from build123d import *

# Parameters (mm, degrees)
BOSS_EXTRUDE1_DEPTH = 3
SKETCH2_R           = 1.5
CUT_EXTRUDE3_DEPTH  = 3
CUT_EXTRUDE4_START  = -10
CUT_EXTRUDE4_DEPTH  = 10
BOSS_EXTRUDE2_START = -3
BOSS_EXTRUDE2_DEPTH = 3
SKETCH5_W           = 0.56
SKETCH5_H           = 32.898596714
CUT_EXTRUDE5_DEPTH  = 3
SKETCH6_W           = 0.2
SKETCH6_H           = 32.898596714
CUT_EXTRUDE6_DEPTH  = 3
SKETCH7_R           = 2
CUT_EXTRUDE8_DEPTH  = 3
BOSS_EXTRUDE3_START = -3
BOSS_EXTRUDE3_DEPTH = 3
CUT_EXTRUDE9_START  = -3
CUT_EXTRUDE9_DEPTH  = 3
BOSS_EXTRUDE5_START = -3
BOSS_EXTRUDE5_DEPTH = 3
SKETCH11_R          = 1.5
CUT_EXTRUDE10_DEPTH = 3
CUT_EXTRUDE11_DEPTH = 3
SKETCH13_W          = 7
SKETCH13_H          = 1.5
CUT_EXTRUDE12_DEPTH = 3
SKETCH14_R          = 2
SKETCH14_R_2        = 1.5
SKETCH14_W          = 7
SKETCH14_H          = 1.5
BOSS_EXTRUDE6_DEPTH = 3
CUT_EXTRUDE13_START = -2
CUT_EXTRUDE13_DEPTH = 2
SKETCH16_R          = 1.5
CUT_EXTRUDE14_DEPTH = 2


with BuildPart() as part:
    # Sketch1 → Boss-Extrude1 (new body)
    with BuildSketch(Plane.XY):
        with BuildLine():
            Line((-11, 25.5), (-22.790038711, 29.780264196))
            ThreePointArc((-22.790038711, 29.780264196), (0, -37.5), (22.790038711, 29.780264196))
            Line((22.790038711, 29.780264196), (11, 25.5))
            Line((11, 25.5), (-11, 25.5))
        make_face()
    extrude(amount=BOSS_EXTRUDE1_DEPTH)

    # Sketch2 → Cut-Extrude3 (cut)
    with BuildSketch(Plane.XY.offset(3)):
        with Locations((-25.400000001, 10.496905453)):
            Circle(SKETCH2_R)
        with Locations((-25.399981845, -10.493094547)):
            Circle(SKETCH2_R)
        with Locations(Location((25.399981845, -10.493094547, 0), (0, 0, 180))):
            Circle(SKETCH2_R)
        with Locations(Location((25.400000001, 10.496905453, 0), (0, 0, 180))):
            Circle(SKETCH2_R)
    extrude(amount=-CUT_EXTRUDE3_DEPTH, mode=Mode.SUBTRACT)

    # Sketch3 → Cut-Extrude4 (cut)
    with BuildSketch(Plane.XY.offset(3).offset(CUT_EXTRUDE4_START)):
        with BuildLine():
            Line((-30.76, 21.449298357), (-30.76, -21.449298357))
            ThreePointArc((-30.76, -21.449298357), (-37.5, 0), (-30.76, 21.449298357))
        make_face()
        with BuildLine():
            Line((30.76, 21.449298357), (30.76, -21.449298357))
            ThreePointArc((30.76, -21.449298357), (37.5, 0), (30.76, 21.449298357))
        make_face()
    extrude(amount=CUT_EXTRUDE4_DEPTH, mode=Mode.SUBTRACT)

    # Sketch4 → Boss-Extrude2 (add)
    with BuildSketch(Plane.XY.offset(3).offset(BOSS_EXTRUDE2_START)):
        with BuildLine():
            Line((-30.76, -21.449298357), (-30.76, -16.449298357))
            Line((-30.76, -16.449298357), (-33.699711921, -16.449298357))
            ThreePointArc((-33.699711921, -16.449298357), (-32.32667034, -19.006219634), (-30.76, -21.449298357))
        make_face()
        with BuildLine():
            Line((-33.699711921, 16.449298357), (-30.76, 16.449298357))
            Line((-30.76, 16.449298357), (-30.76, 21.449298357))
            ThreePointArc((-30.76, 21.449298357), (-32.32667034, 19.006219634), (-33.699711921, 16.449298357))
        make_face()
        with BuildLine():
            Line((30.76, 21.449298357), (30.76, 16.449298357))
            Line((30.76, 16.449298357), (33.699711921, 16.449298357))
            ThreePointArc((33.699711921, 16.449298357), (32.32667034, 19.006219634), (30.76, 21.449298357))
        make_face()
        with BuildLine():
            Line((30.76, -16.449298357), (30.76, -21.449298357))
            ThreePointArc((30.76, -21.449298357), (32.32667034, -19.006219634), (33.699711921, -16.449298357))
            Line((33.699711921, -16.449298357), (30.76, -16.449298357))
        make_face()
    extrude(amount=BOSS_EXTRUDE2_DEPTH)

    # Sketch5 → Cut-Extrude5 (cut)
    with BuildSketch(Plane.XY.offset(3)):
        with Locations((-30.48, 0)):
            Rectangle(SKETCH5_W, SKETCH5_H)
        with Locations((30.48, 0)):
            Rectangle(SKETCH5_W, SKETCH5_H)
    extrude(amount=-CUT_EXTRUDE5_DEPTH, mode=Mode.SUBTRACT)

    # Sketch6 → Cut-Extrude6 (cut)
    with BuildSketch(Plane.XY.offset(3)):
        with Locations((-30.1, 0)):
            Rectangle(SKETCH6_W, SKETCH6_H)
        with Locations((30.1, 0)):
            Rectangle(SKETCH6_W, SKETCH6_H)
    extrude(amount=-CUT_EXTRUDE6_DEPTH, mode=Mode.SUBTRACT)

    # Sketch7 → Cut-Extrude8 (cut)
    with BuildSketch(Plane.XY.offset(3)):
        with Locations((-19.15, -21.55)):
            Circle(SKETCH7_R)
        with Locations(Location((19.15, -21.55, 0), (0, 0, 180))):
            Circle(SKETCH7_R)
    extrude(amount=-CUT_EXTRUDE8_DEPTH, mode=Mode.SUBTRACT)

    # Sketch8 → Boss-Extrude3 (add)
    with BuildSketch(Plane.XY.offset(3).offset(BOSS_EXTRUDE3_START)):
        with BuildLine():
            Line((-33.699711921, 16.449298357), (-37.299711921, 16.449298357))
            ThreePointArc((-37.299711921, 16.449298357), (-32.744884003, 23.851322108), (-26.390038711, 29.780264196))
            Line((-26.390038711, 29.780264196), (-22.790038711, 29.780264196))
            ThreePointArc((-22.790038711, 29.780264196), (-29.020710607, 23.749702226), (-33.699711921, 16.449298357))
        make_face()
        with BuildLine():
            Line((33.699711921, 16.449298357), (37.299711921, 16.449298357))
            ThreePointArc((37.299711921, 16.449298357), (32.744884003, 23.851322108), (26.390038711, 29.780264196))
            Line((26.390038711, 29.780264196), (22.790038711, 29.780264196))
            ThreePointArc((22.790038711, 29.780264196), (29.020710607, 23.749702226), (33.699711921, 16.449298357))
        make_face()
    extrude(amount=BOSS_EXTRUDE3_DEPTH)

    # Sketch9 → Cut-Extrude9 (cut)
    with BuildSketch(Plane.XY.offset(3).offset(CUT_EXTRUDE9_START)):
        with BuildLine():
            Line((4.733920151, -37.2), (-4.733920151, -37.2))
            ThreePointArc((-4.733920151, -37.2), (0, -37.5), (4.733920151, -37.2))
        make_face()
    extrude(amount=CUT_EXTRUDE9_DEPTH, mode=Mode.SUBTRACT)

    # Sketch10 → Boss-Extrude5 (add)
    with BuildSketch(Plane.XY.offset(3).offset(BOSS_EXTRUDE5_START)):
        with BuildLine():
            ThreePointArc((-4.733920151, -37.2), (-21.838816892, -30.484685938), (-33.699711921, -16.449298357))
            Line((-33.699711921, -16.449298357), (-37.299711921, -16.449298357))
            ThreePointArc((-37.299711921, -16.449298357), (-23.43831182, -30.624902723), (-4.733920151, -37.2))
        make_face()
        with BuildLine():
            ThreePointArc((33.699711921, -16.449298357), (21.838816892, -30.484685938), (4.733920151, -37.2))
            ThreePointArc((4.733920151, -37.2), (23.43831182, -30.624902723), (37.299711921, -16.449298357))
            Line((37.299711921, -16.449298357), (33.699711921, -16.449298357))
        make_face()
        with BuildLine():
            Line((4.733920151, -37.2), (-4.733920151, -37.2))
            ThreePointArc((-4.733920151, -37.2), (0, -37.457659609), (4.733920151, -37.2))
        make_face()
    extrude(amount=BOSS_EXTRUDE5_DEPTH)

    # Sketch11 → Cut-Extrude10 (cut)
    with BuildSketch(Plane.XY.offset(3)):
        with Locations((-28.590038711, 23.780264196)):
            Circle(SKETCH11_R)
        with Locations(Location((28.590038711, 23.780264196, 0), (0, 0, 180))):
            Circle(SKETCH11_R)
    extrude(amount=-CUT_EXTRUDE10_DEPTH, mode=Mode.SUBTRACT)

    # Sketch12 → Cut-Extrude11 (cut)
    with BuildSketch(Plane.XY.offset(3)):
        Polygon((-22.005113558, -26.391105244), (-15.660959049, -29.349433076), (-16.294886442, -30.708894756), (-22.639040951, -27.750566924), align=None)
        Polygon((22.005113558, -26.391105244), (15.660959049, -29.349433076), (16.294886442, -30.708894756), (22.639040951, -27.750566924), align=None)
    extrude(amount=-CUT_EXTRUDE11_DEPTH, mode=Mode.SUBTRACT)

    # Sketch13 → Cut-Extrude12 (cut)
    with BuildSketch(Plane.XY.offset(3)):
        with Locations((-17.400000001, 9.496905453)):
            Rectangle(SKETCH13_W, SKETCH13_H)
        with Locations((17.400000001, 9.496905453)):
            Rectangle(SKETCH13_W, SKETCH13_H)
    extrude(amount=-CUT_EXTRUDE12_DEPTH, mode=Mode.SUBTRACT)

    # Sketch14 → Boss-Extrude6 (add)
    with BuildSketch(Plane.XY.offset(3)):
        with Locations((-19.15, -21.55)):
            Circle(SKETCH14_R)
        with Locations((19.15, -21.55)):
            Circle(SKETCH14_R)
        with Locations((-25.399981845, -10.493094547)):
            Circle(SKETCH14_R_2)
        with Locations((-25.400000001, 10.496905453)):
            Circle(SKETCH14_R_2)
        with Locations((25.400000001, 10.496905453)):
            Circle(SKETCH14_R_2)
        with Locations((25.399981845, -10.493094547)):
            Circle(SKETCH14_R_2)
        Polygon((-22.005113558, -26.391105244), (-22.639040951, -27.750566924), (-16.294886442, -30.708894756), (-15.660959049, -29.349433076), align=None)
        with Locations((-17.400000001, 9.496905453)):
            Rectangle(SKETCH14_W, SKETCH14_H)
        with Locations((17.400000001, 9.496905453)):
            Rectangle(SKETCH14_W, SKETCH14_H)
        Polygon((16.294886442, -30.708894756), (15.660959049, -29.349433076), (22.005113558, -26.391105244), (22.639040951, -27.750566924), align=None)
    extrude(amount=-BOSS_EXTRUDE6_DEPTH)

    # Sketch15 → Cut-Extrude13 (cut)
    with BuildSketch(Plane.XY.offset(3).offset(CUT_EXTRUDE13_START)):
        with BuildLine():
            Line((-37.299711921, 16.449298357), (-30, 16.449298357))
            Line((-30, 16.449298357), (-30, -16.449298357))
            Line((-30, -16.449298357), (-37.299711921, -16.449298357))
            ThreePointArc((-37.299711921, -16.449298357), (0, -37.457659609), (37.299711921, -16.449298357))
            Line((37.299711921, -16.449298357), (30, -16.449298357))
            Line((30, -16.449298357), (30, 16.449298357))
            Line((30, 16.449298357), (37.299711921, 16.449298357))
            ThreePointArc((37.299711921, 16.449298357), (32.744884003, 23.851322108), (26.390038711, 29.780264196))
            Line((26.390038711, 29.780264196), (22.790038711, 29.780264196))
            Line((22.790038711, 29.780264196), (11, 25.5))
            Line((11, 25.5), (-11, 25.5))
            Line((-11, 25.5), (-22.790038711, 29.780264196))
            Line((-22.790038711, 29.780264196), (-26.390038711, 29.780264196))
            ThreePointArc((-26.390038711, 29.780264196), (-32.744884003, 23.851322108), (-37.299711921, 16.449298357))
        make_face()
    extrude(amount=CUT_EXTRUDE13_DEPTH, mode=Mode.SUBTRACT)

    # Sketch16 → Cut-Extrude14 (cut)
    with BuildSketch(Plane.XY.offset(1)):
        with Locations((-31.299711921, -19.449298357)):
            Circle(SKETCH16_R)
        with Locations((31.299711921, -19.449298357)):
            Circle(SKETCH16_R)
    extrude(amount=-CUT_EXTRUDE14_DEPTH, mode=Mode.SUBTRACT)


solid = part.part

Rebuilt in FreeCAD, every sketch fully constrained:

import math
import FreeCAD as App
import Part
import Sketcher
from FreeCAD import Vector
Q = App.Units.Quantity

doc = App.newDocument("Part")
body = doc.addObject("PartDesign::Body", "Body")

# Sketch on XY plane
sketch1 = body.newObject("Sketcher::SketchObject", "Sketch")
sketch1.AttachmentSupport = (doc.getObject("XY_Plane"), [""])
sketch1.MapMode = "FlatFace"
sketch1.addGeometry([
    Part.LineSegment(Vector(-11, 26, 0), Vector(-23, 30, 0)),
    Part.ArcOfCircle(Part.Circle(Vector(0, 0, 0), Vector(0, 0, 1), 38), math.radians(127), math.radians(413)),
    Part.LineSegment(Vector(23, 30, 0), Vector(11, 26, 0)),
    Part.LineSegment(Vector(11, 26, 0), Vector(-11, 26, 0)),
], False)
sketch1.addConstraint([
    Sketcher.Constraint("Coincident", 0, 2, 1, 1),
    Sketcher.Constraint("Coincident", 1, 2, 2, 1),
    Sketcher.Constraint("Coincident", 2, 2, 3, 1),
    Sketcher.Constraint("Coincident", 3, 2, 0, 1),
    Sketcher.Constraint("Horizontal", 3),
    Sketcher.Constraint("Coincident", 1, 3, -1, 1),
    Sketcher.Constraint("Horizontal", 0, 2, 1, 2),
    Sketcher.Constraint("Equal", 0, 2),
    Sketcher.Constraint("Radius", 1, Q("37.5 mm")),
    Sketcher.Constraint("DistanceX", 3, 2, 3, 1, Q("22 mm")),
    Sketcher.Constraint("DistanceY", -1, 1, 2, 2, Q("25.5 mm")),
    Sketcher.Constraint("DistanceX", 0, 2, -1, 1, Q("22.790039 mm")),
])
pad1 = body.newObject("PartDesign::Pad", "Pad")
pad1.Profile = sketch1
pad1.Length = 3

# Sketch on XY plane
sketch2 = body.newObject("Sketcher::SketchObject", "Sketch001")
sketch2.AttachmentSupport = (doc.getObject("XY_Plane"), [""])
sketch2.MapMode = "FlatFace"
sketch2.AttachmentOffset = App.Placement(Vector(0, 0, 3), App.Rotation())
sketch2.addGeometry([
    Part.Circle(Vector(-25.4, 10.5, 0), Vector(0, 0, 1), 1.5),
    Part.Circle(Vector(-25.4, -10.5, 0), Vector(0, 0, 1), 1.5),
    Part.Circle(Vector(25.4, -10.5, 0), Vector(0, 0, 1), 1.5),
    Part.Circle(Vector(25.4, 10.5, 0), Vector(0, 0, 1), 1.5),
], False)
sketch2.addConstraint([
    Sketcher.Constraint("Equal", 0, 1),
    Sketcher.Constraint("Equal", 1, 2),
    Sketcher.Constraint("Equal", 2, 3),
    Sketcher.Constraint("Symmetric", 1, 3, 2, 3, -2),
    Sketcher.Constraint("Symmetric", 0, 3, 3, 3, -2),
    Sketcher.Constraint("Diameter", 0, Q("3 mm")),
    Sketcher.Constraint("DistanceX", 0, 3, -1, 1, Q("25.4 mm")),
    Sketcher.Constraint("DistanceY", 1, 3, 0, 3, Q("20.99 mm")),
    Sketcher.Constraint("DistanceX", 1, 3, -1, 1, Q("25.399982 mm")),
    Sketcher.Constraint("DistanceY", -1, 1, 0, 3, Q("10.496905 mm")),
])
pocket1 = body.newObject("PartDesign::Pocket", "Pocket")
pocket1.Profile = sketch2
pocket1.Length = 3

# Sketch on XY plane
sketch3 = body.newObject("Sketcher::SketchObject", "Sketch002")
sketch3.AttachmentSupport = (doc.getObject("XY_Plane"), [""])
sketch3.MapMode = "FlatFace"
sketch3.AttachmentOffset = App.Placement(Vector(0, 0, -7), App.Rotation())
sketch3.addGeometry([
    Part.LineSegment(Vector(-31, -21, 0), Vector(-31, 21, 0)),
    Part.ArcOfCircle(Part.Circle(Vector(0, 0, 0), Vector(0, 0, 1), 38), math.radians(145), math.radians(215)),
    Part.LineSegment(Vector(31, 21, 0), Vector(31, -21, 0)),
    Part.ArcOfCircle(Part.Circle(Vector(0, 0, 0), Vector(0, 0, 1), 38), math.radians(-35), math.radians(35)),
], False)
sketch3.addConstraint([
    Sketcher.Constraint("Coincident", 0, 1, 1, 2),
    Sketcher.Constraint("Coincident", 1, 1, 0, 2),
    Sketcher.Constraint("Coincident", 2, 1, 3, 2),
    Sketcher.Constraint("Coincident", 3, 1, 2, 2),
    Sketcher.Constraint("Vertical", 0),
    Sketcher.Constraint("Vertical", 2),
    Sketcher.Constraint("Coincident", 1, 3, -1, 1),
    Sketcher.Constraint("Coincident", 3, 3, -1, 1),
    Sketcher.Constraint("Equal", 1, 3),
    Sketcher.Constraint("Horizontal", 1, 1, 2, 1),
    Sketcher.Constraint("Radius", 1, Q("37.5 mm")),
    Sketcher.Constraint("DistanceX", 0, 1, -1, 1, Q("30.76 mm")),
])
pocket2 = body.newObject("PartDesign::Pocket", "Pocket001")
pocket2.Profile = sketch3
pocket2.Length = 10
pocket2.Reversed = True

# Sketch on XY plane
sketch4 = body.newObject("Sketcher::SketchObject", "Sketch003")
sketch4.AttachmentSupport = (doc.getObject("XY_Plane"), [""])
sketch4.MapMode = "FlatFace"
sketch4.addGeometry([
    Part.LineSegment(Vector(-30.8, -21.4, 0), Vector(-30.8, -16.4, 0)),  # 0
    Part.LineSegment(Vector(-30.8, -16.4, 0), Vector(-33.7, -16.4, 0)),  # 1
    Part.ArcOfCircle(Part.Circle(Vector(0, 0, 0), Vector(0, 0, 1), 37.5), math.radians(-153.98), math.radians(-145.11)),  # 2
    Part.LineSegment(Vector(-33.7, 16.4, 0), Vector(-30.8, 16.4, 0)),  # 3
    Part.LineSegment(Vector(-30.8, 16.4, 0), Vector(-30.8, 21.4, 0)),  # 4
    Part.ArcOfCircle(Part.Circle(Vector(0, 0, 0), Vector(0, 0, 1), 37.5), math.radians(145.11), math.radians(153.98)),  # 5
    Part.LineSegment(Vector(30.8, 21.4, 0), Vector(30.8, 16.4, 0)),  # 6
    Part.LineSegment(Vector(30.8, 16.4, 0), Vector(33.7, 16.4, 0)),  # 7
    Part.ArcOfCircle(Part.Circle(Vector(0, 0, 0), Vector(0, 0, 1), 37.5), math.radians(26.02), math.radians(34.89)),  # 8
    Part.LineSegment(Vector(30.8, -16.4, 0), Vector(30.8, -21.4, 0)),  # 9
    Part.ArcOfCircle(Part.Circle(Vector(0, 0, 0), Vector(0, 0, 1), 37.5), math.radians(-34.89), math.radians(-26.02)),  # 10
    Part.LineSegment(Vector(33.7, -16.4, 0), Vector(30.8, -16.4, 0)),  # 11
], False)
sketch4.addConstraint([
    Sketcher.Constraint("Coincident", 0, 2, 1, 1),
    Sketcher.Constraint("Coincident", 1, 2, 2, 1),
    Sketcher.Constraint("Coincident", 2, 2, 0, 1),
    Sketcher.Constraint("Coincident", 3, 2, 4, 1),
    Sketcher.Constraint("Coincident", 4, 2, 5, 1),
    Sketcher.Constraint("Coincident", 5, 2, 3, 1),
    Sketcher.Constraint("Coincident", 6, 2, 7, 1),
    Sketcher.Constraint("Coincident", 7, 2, 8, 1),
    Sketcher.Constraint("Coincident", 8, 2, 6, 1),
    Sketcher.Constraint("Coincident", 9, 2, 10, 1),
    Sketcher.Constraint("Coincident", 10, 2, 11, 1),
    Sketcher.Constraint("Coincident", 11, 2, 9, 1),
    Sketcher.Constraint("Vertical", 0),
    Sketcher.Constraint("Horizontal", 1),
    Sketcher.Constraint("Horizontal", 3),
    Sketcher.Constraint("Vertical", 4),
    Sketcher.Constraint("Vertical", 6),
    Sketcher.Constraint("Horizontal", 7),
    Sketcher.Constraint("Vertical", 9),
    Sketcher.Constraint("Horizontal", 11),
    Sketcher.Constraint("Coincident", 2, 3, -1, 1),
    Sketcher.Constraint("Coincident", 5, 3, -1, 1),
    Sketcher.Constraint("Coincident", 8, 3, -1, 1),
    Sketcher.Constraint("Coincident", 10, 3, -1, 1),
    Sketcher.Constraint("Equal", 2, 5),
    Sketcher.Constraint("Equal", 5, 8),
    Sketcher.Constraint("Equal", 8, 10),
    Sketcher.Constraint("Symmetric", 0, 2, 6, 2, -1, 1),
    Sketcher.Constraint("Symmetric", 3, 2, 11, 2, -1, 1),
    Sketcher.Constraint("Symmetric", 3, 2, 6, 2, -2),
    Sketcher.Constraint("Radius", 2, Q("37.5 mm")),
    Sketcher.Constraint("DistanceY", 0, 1, 0, 2, Q("5 mm")),
    Sketcher.Constraint("DistanceX", 0, 2, -1, 1, Q("30.76 mm")),
])
pad2 = body.newObject("PartDesign::Pad", "Pad001")
pad2.Profile = sketch4
pad2.Length = 3

# Sketch on XY plane
sketch5 = body.newObject("Sketcher::SketchObject", "Sketch004")
sketch5.AttachmentSupport = (doc.getObject("XY_Plane"), [""])
sketch5.MapMode = "FlatFace"
sketch5.AttachmentOffset = App.Placement(Vector(0, 0, 3), App.Rotation())
sketch5.addGeometry([
    Part.LineSegment(Vector(-30.8, 16.4, 0), Vector(-30.8, -16.4, 0)),  # 0
    Part.LineSegment(Vector(-30.8, -16.4, 0), Vector(-30.2, -16.4, 0)),  # 1
    Part.LineSegment(Vector(-30.2, -16.4, 0), Vector(-30.2, 16.4, 0)),  # 2
    Part.LineSegment(Vector(-30.2, 16.4, 0), Vector(-30.8, 16.4, 0)),  # 3
    Part.LineSegment(Vector(30.2, 16.4, 0), Vector(30.2, -16.4, 0)),  # 4
    Part.LineSegment(Vector(30.2, -16.4, 0), Vector(30.8, -16.4, 0)),  # 5
    Part.LineSegment(Vector(30.8, -16.4, 0), Vector(30.8, 16.4, 0)),  # 6
    Part.LineSegment(Vector(30.8, 16.4, 0), Vector(30.2, 16.4, 0)),  # 7
], False)
sketch5.addConstraint([
    Sketcher.Constraint("Coincident", 0, 2, 1, 1),
    Sketcher.Constraint("Coincident", 1, 2, 2, 1),
    Sketcher.Constraint("Coincident", 2, 2, 3, 1),
    Sketcher.Constraint("Coincident", 3, 2, 0, 1),
    Sketcher.Constraint("Coincident", 4, 2, 5, 1),
    Sketcher.Constraint("Coincident", 5, 2, 6, 1),
    Sketcher.Constraint("Coincident", 6, 2, 7, 1),
    Sketcher.Constraint("Coincident", 7, 2, 4, 1),
    Sketcher.Constraint("Vertical", 0),
    Sketcher.Constraint("Horizontal", 1),
    Sketcher.Constraint("Vertical", 2),
    Sketcher.Constraint("Horizontal", 3),
    Sketcher.Constraint("Vertical", 4),
    Sketcher.Constraint("Horizontal", 5),
    Sketcher.Constraint("Vertical", 6),
    Sketcher.Constraint("Horizontal", 7),
    Sketcher.Constraint("Symmetric", 2, 2, 4, 2, -1, 1),
    Sketcher.Constraint("Symmetric", 0, 2, 6, 2, -1, 1),
    Sketcher.Constraint("Horizontal", 1, 2, 4, 2),
    Sketcher.Constraint("DistanceX", 1, 1, 1, 2, Q("0.56 mm")),
    Sketcher.Constraint("DistanceX", 1, 2, -1, 1, Q("30.2 mm")),
    Sketcher.Constraint("DistanceY", 0, 2, -1, 1, Q("16.449298 mm")),
])
pocket3 = body.newObject("PartDesign::Pocket", "Pocket002")
pocket3.Profile = sketch5
pocket3.Length = 3

# Sketch on XY plane
sketch6 = body.newObject("Sketcher::SketchObject", "Sketch005")
sketch6.AttachmentSupport = (doc.getObject("XY_Plane"), [""])
sketch6.MapMode = "FlatFace"
sketch6.AttachmentOffset = App.Placement(Vector(0, 0, 3), App.Rotation())
sketch6.addGeometry([
    Part.LineSegment(Vector(-30.2, 16.45, 0), Vector(-30.2, -16.45, 0)),  # 0
    Part.LineSegment(Vector(-30.2, -16.45, 0), Vector(-30, -16.45, 0)),  # 1
    Part.LineSegment(Vector(-30, -16.45, 0), Vector(-30, 16.45, 0)),  # 2
    Part.LineSegment(Vector(-30, 16.45, 0), Vector(-30.2, 16.45, 0)),  # 3
    Part.LineSegment(Vector(30, 16.45, 0), Vector(30, -16.45, 0)),  # 4
    Part.LineSegment(Vector(30, -16.45, 0), Vector(30.2, -16.45, 0)),  # 5
    Part.LineSegment(Vector(30.2, -16.45, 0), Vector(30.2, 16.45, 0)),  # 6
    Part.LineSegment(Vector(30.2, 16.45, 0), Vector(30, 16.45, 0)),  # 7
], False)
sketch6.addConstraint([
    Sketcher.Constraint("Coincident", 0, 2, 1, 1),
    Sketcher.Constraint("Coincident", 1, 2, 2, 1),
    Sketcher.Constraint("Coincident", 2, 2, 3, 1),
    Sketcher.Constraint("Coincident", 3, 2, 0, 1),
    Sketcher.Constraint("Coincident", 4, 2, 5, 1),
    Sketcher.Constraint("Coincident", 5, 2, 6, 1),
    Sketcher.Constraint("Coincident", 6, 2, 7, 1),
    Sketcher.Constraint("Coincident", 7, 2, 4, 1),
    Sketcher.Constraint("Vertical", 0),
    Sketcher.Constraint("Horizontal", 1),
    Sketcher.Constraint("Vertical", 2),
    Sketcher.Constraint("Horizontal", 3),
    Sketcher.Constraint("Vertical", 4),
    Sketcher.Constraint("Horizontal", 5),
    Sketcher.Constraint("Vertical", 6),
    Sketcher.Constraint("Horizontal", 7),
    Sketcher.Constraint("Symmetric", 2, 2, 4, 2, -1, 1),
    Sketcher.Constraint("Symmetric", 0, 2, 6, 2, -1, 1),
    Sketcher.Constraint("Horizontal", 1, 2, 4, 2),
    Sketcher.Constraint("DistanceX", 1, 1, 1, 2, Q("0.2 mm")),
    Sketcher.Constraint("DistanceX", 1, 2, -1, 1, Q("30 mm")),
    Sketcher.Constraint("DistanceY", 0, 2, -1, 1, Q("16.449298 mm")),
])
pocket4 = body.newObject("PartDesign::Pocket", "Pocket003")
pocket4.Profile = sketch6
pocket4.Length = 3

# Sketch on XY plane
sketch7 = body.newObject("Sketcher::SketchObject", "Sketch006")
sketch7.AttachmentSupport = (doc.getObject("XY_Plane"), [""])
sketch7.MapMode = "FlatFace"
sketch7.AttachmentOffset = App.Placement(Vector(0, 0, 3), App.Rotation())
sketch7.addGeometry([
    Part.Circle(Vector(-19.1, -21.6, 0), Vector(0, 0, 1), 2),
    Part.Circle(Vector(19.1, -21.6, 0), Vector(0, 0, 1), 2),
], False)
sketch7.addConstraint([
    Sketcher.Constraint("Equal", 0, 1),
    Sketcher.Constraint("Symmetric", 0, 3, 1, 3, -2),
    Sketcher.Constraint("Diameter", 0, Q("4 mm")),
    Sketcher.Constraint("DistanceX", 0, 3, 1, 3, Q("38.3 mm")),
    Sketcher.Constraint("DistanceY", 0, 3, -1, 1, Q("21.55 mm")),
])
pocket5 = body.newObject("PartDesign::Pocket", "Pocket004")
pocket5.Profile = sketch7
pocket5.Length = 3

# Sketch on XY plane
sketch8 = body.newObject("Sketcher::SketchObject", "Sketch007")
sketch8.AttachmentSupport = (doc.getObject("XY_Plane"), [""])
sketch8.MapMode = "FlatFace"
sketch8.addGeometry([
    Part.LineSegment(Vector(-37.3, 16.4, 0), Vector(-33.7, 16.4, 0)),  # 0
    Part.ArcOfCircle(Part.Circle(Vector(0, 0, 0), Vector(0, 0, 1), 37.5), math.radians(127), math.radians(154)),  # 1
    Part.LineSegment(Vector(-22.8, 29.8, 0), Vector(-26.4, 29.8, 0)),  # 2
    Part.ArcOfCircle(Part.Circle(Vector(-7.6, 3.3, 0), Vector(0, 0, 1), 32.5), math.radians(125), math.radians(156)),  # 3
    Part.LineSegment(Vector(33.7, 16.4, 0), Vector(37.3, 16.4, 0)),  # 4
    Part.ArcOfCircle(Part.Circle(Vector(7.6, 3.3, 0), Vector(0, 0, 1), 32.5), math.radians(24), math.radians(55)),  # 5
    Part.LineSegment(Vector(26.4, 29.8, 0), Vector(22.8, 29.8, 0)),  # 6
    Part.ArcOfCircle(Part.Circle(Vector(0, 0, 0), Vector(0, 0, 1), 37.5), math.radians(26), math.radians(53)),  # 7
], False)
sketch8.addConstraint([
    Sketcher.Constraint("Coincident", 0, 2, 1, 2),
    Sketcher.Constraint("Coincident", 1, 1, 2, 1),
    Sketcher.Constraint("Coincident", 2, 2, 3, 1),
    Sketcher.Constraint("Coincident", 3, 2, 0, 1),
    Sketcher.Constraint("Coincident", 4, 2, 5, 1),
    Sketcher.Constraint("Coincident", 5, 2, 6, 1),
    Sketcher.Constraint("Coincident", 6, 2, 7, 2),
    Sketcher.Constraint("Coincident", 7, 1, 4, 1),
    Sketcher.Constraint("Horizontal", 0),
    Sketcher.Constraint("Horizontal", 2),
    Sketcher.Constraint("Horizontal", 4),
    Sketcher.Constraint("Horizontal", 6),
    Sketcher.Constraint("Coincident", 1, 3, -1, 1),
    Sketcher.Constraint("Coincident", 7, 3, -1, 1),
    Sketcher.Constraint("Equal", 3, 5),
    Sketcher.Constraint("Equal", 1, 7),
    Sketcher.Constraint("Symmetric", 3, 3, 5, 3, -2),
    Sketcher.Constraint("Horizontal", 3, 2, 4, 2),
    Sketcher.Constraint("Horizontal", 2, 2, 5, 2),
    Sketcher.Constraint("Equal", 0, 2),
    Sketcher.Constraint("Radius", 1, Q("37.5 mm")),
    Sketcher.Constraint("DistanceX", 0, 1, 0, 2, Q("3.6 mm")),
    Sketcher.Constraint("Radius", 3, Q("32.475544 mm")),
    Sketcher.Constraint("DistanceY", -1, 1, 0, 2, Q("16.449298 mm")),
    Sketcher.Constraint("DistanceX", 1, 1, -1, 1, Q("22.790039 mm")),
])
pad3 = body.newObject("PartDesign::Pad", "Pad002")
pad3.Profile = sketch8
pad3.Length = 3

# Sketch on XY plane
sketch9 = body.newObject("Sketcher::SketchObject", "Sketch008")
sketch9.AttachmentSupport = (doc.getObject("XY_Plane"), [""])
sketch9.MapMode = "FlatFace"
sketch9.addGeometry([
    Part.LineSegment(Vector(5, -37, 0), Vector(-5, -37, 0)),
    Part.ArcOfCircle(Part.Circle(Vector(0, 0, 0), Vector(0, 0, 1), 37), math.radians(-97.25), math.radians(-82.75)),
], False)
sketch9.addConstraint([
    Sketcher.Constraint("Coincident", 0, 1, 1, 2),
    Sketcher.Constraint("Coincident", 1, 1, 0, 2),
    Sketcher.Constraint("Horizontal", 0),
    Sketcher.Constraint("Coincident", 1, 3, -1, 1),
    Sketcher.Constraint("Radius", 1, Q("37.5 mm")),
    Sketcher.Constraint("DistanceY", 0, 1, -1, 1, Q("37.2 mm")),
])
pocket6 = body.newObject("PartDesign::Pocket", "Pocket005")
pocket6.Profile = sketch9
pocket6.Length = 3
pocket6.Reversed = True

# Sketch on XY plane
sketch10 = body.newObject("Sketcher::SketchObject", "Sketch009")
sketch10.AttachmentSupport = (doc.getObject("XY_Plane"), [""])
sketch10.MapMode = "FlatFace"
sketch10.addGeometry([
    Part.ArcOfCircle(Part.Circle(Vector(0, 0, 0), Vector(0, 0, 1), 37.5), math.radians(-154), math.radians(-97)),  # 0
    Part.LineSegment(Vector(-33.7, -16.4, 0), Vector(-37.3, -16.4, 0)),  # 1
    Part.ArcOfCircle(Part.Circle(Vector(0, 6.2, 0), Vector(0, 0, 1), 43.6), math.radians(-149), math.radians(-96)),  # 2
    Part.ArcOfCircle(Part.Circle(Vector(0, 0, 0), Vector(0, 0, 1), 37.5), math.radians(-83), math.radians(-26)),  # 3
    Part.ArcOfCircle(Part.Circle(Vector(0, 6.2, 0), Vector(0, 0, 1), 43.6), math.radians(-84), math.radians(-31)),  # 4
    Part.LineSegment(Vector(37.3, -16.4, 0), Vector(33.7, -16.4, 0)),  # 5
    Part.LineSegment(Vector(4.7, -37.2, 0), Vector(-4.7, -37.2, 0)),  # 6
    Part.ArcOfCircle(Part.Circle(Vector(0, 6.2, 0), Vector(0, 0, 1), 43.6), math.radians(-96.23), math.radians(-83.77)),  # 7
], False)
sketch10.addConstraint([
    Sketcher.Constraint("Coincident", 0, 1, 1, 1),
    Sketcher.Constraint("Coincident", 1, 2, 2, 1),
    Sketcher.Constraint("Coincident", 2, 2, 0, 2),
    Sketcher.Constraint("Coincident", 3, 1, 4, 1),
    Sketcher.Constraint("Coincident", 4, 2, 5, 1),
    Sketcher.Constraint("Coincident", 5, 2, 3, 2),
    Sketcher.Constraint("Coincident", 6, 1, 7, 2),
    Sketcher.Constraint("Coincident", 7, 1, 6, 2),
    Sketcher.Constraint("Horizontal", 1),
    Sketcher.Constraint("Horizontal", 5),
    Sketcher.Constraint("Horizontal", 6),
    Sketcher.Constraint("Coincident", 0, 3, -1, 1),
    Sketcher.Constraint("Coincident", 3, 3, -1, 1),
    Sketcher.Constraint("Coincident", 4, 3, 2, 3),
    Sketcher.Constraint("Coincident", 7, 3, 2, 3),
    Sketcher.Constraint("Coincident", 6, 1, 3, 1),
    Sketcher.Constraint("Coincident", 7, 1, 2, 2),
    Sketcher.Constraint("Equal", 0, 3),
    Sketcher.Constraint("Horizontal", 1, 2, 4, 2),
    Sketcher.Constraint("Radius", 0, Q("37.5 mm")),
    Sketcher.Constraint("DistanceX", 1, 2, 1, 1, Q("3.6 mm")),
    Sketcher.Constraint("DistanceY", 2, 2, -1, 1, Q("37.2 mm")),
    Sketcher.Constraint("Radius", 2, Q("43.616438 mm")),
])
pad4 = body.newObject("PartDesign::Pad", "Pad003")
pad4.Profile = sketch10
pad4.Length = 3

# Sketch on XY plane
sketch11 = body.newObject("Sketcher::SketchObject", "Sketch010")
sketch11.AttachmentSupport = (doc.getObject("XY_Plane"), [""])
sketch11.MapMode = "FlatFace"
sketch11.AttachmentOffset = App.Placement(Vector(0, 0, 3), App.Rotation())
sketch11.addGeometry([
    Part.Circle(Vector(-28.6, 23.8, 0), Vector(0, 0, 1), 1.5),
    Part.Circle(Vector(28.6, 23.8, 0), Vector(0, 0, 1), 1.5),
], False)
sketch11.addConstraint([
    Sketcher.Constraint("Equal", 0, 1),
    Sketcher.Constraint("Symmetric", 0, 3, 1, 3, -2),
    Sketcher.Constraint("Diameter", 0, Q("3 mm")),
    Sketcher.Constraint("DistanceX", 0, 3, -1, 1, Q("28.590039 mm")),
    Sketcher.Constraint("DistanceY", -1, 1, 0, 3, Q("23.780264 mm")),
])
pocket7 = body.newObject("PartDesign::Pocket", "Pocket006")
pocket7.Profile = sketch11
pocket7.Length = 3

# Sketch on XY plane
sketch12 = body.newObject("Sketcher::SketchObject", "Sketch011")
sketch12.AttachmentSupport = (doc.getObject("XY_Plane"), [""])
sketch12.MapMode = "FlatFace"
sketch12.AttachmentOffset = App.Placement(Vector(0, 0, 3), App.Rotation())
sketch12.addGeometry([
    Part.LineSegment(Vector(-15.7, -29.3, 0), Vector(-22, -26.4, 0)),  # 0
    Part.LineSegment(Vector(-22, -26.4, 0), Vector(-22.6, -27.8, 0)),  # 1
    Part.LineSegment(Vector(-22.6, -27.8, 0), Vector(-16.3, -30.7, 0)),  # 2
    Part.LineSegment(Vector(-16.3, -30.7, 0), Vector(-15.7, -29.3, 0)),  # 3
    Part.LineSegment(Vector(22, -26.4, 0), Vector(15.7, -29.3, 0)),  # 4
    Part.LineSegment(Vector(15.7, -29.3, 0), Vector(16.3, -30.7, 0)),  # 5
    Part.LineSegment(Vector(16.3, -30.7, 0), Vector(22.6, -27.8, 0)),  # 6
    Part.LineSegment(Vector(22.6, -27.8, 0), Vector(22, -26.4, 0)),  # 7
], False)
sketch12.addConstraint([
    Sketcher.Constraint("Coincident", 0, 2, 1, 1),
    Sketcher.Constraint("Coincident", 1, 2, 2, 1),
    Sketcher.Constraint("Coincident", 2, 2, 3, 1),
    Sketcher.Constraint("Coincident", 3, 2, 0, 1),
    Sketcher.Constraint("Coincident", 4, 2, 5, 1),
    Sketcher.Constraint("Coincident", 5, 2, 6, 1),
    Sketcher.Constraint("Coincident", 6, 2, 7, 1),
    Sketcher.Constraint("Coincident", 7, 2, 4, 1),
    Sketcher.Constraint("Symmetric", 3, 2, 4, 2, -2),
    Sketcher.Constraint("Symmetric", 2, 2, 5, 2, -2),
    Sketcher.Constraint("Symmetric", 1, 2, 6, 2, -2),
    Sketcher.Constraint("Symmetric", 0, 2, 7, 2, -2),
    Sketcher.Constraint("Perpendicular", 0, 1),
    Sketcher.Constraint("Perpendicular", 1, 2),
    Sketcher.Constraint("Perpendicular", 2, 3),
    Sketcher.Constraint("Angle", 0, Q("155 deg")),
    Sketcher.Constraint("Distance", 0, Q("7 mm")),
    Sketcher.Constraint("Distance", 1, Q("1.5 mm")),
    Sketcher.Constraint("DistanceX", 1, 2, 4, 2, Q("38.3 mm")),
    Sketcher.Constraint("DistanceY", 0, 2, -1, 1, Q("26.391105 mm")),
])
pocket8 = body.newObject("PartDesign::Pocket", "Pocket007")
pocket8.Profile = sketch12
pocket8.Length = 3

# Sketch on XY plane
sketch13 = body.newObject("Sketcher::SketchObject", "Sketch012")
sketch13.AttachmentSupport = (doc.getObject("XY_Plane"), [""])
sketch13.MapMode = "FlatFace"
sketch13.AttachmentOffset = App.Placement(Vector(0, 0, 3), App.Rotation())
sketch13.addGeometry([
    Part.LineSegment(Vector(-20.9, 10.2, 0), Vector(-20.9, 8.7, 0)),  # 0
    Part.LineSegment(Vector(-20.9, 8.7, 0), Vector(-13.9, 8.7, 0)),  # 1
    Part.LineSegment(Vector(-13.9, 8.7, 0), Vector(-13.9, 10.2, 0)),  # 2
    Part.LineSegment(Vector(-13.9, 10.2, 0), Vector(-20.9, 10.2, 0)),  # 3
    Part.LineSegment(Vector(13.9, 10.2, 0), Vector(13.9, 8.7, 0)),  # 4
    Part.LineSegment(Vector(13.9, 8.7, 0), Vector(20.9, 8.7, 0)),  # 5
    Part.LineSegment(Vector(20.9, 8.7, 0), Vector(20.9, 10.2, 0)),  # 6
    Part.LineSegment(Vector(20.9, 10.2, 0), Vector(13.9, 10.2, 0)),  # 7
], False)
sketch13.addConstraint([
    Sketcher.Constraint("Coincident", 0, 2, 1, 1),
    Sketcher.Constraint("Coincident", 1, 2, 2, 1),
    Sketcher.Constraint("Coincident", 2, 2, 3, 1),
    Sketcher.Constraint("Coincident", 3, 2, 0, 1),
    Sketcher.Constraint("Coincident", 4, 2, 5, 1),
    Sketcher.Constraint("Coincident", 5, 2, 6, 1),
    Sketcher.Constraint("Coincident", 6, 2, 7, 1),
    Sketcher.Constraint("Coincident", 7, 2, 4, 1),
    Sketcher.Constraint("Vertical", 0),
    Sketcher.Constraint("Horizontal", 1),
    Sketcher.Constraint("Vertical", 2),
    Sketcher.Constraint("Horizontal", 3),
    Sketcher.Constraint("Vertical", 4),
    Sketcher.Constraint("Horizontal", 5),
    Sketcher.Constraint("Vertical", 6),
    Sketcher.Constraint("Horizontal", 7),
    Sketcher.Constraint("Symmetric", 1, 2, 4, 2, -2),
    Sketcher.Constraint("Symmetric", 3, 2, 6, 2, -2),
    Sketcher.Constraint("DistanceX", 1, 1, 1, 2, Q("7 mm")),
    Sketcher.Constraint("DistanceY", 0, 2, 0, 1, Q("1.5 mm")),
    Sketcher.Constraint("DistanceX", 0, 2, -1, 1, Q("20.9 mm")),
    Sketcher.Constraint("DistanceY", -1, 1, 0, 2, Q("8.746905 mm")),
])
pocket9 = body.newObject("PartDesign::Pocket", "Pocket008")
pocket9.Profile = sketch13
pocket9.Length = 3

# Sketch on XY plane
sketch14 = body.newObject("Sketcher::SketchObject", "Sketch013")
sketch14.AttachmentSupport = (doc.getObject("XY_Plane"), [""])
sketch14.MapMode = "FlatFace"
sketch14.AttachmentOffset = App.Placement(Vector(0, 0, 3), App.Rotation())
sketch14.addGeometry([
    Part.Circle(Vector(-19.1, -21.6, 0), Vector(0, 0, 1), 2),  # 0
    Part.Circle(Vector(19.1, -21.6, 0), Vector(0, 0, 1), 2),  # 1
    Part.Circle(Vector(-25.4, -10.5, 0), Vector(0, 0, 1), 1.5),  # 2
    Part.Circle(Vector(-25.4, 10.5, 0), Vector(0, 0, 1), 1.5),  # 3
    Part.Circle(Vector(25.4, 10.5, 0), Vector(0, 0, 1), 1.5),  # 4
    Part.Circle(Vector(25.4, -10.5, 0), Vector(0, 0, 1), 1.5),  # 5
    Part.LineSegment(Vector(-22, -26.4, 0), Vector(-22.6, -27.8, 0)),  # 6
    Part.LineSegment(Vector(-22.6, -27.8, 0), Vector(-16.3, -30.7, 0)),  # 7
    Part.LineSegment(Vector(-16.3, -30.7, 0), Vector(-15.7, -29.3, 0)),  # 8
    Part.LineSegment(Vector(-15.7, -29.3, 0), Vector(-22, -26.4, 0)),  # 9
    Part.LineSegment(Vector(-20.9, 10.2, 0), Vector(-20.9, 8.7, 0)),  # 10
    Part.LineSegment(Vector(-20.9, 8.7, 0), Vector(-13.9, 8.7, 0)),  # 11
    Part.LineSegment(Vector(-13.9, 8.7, 0), Vector(-13.9, 10.2, 0)),  # 12
    Part.LineSegment(Vector(-13.9, 10.2, 0), Vector(-20.9, 10.2, 0)),  # 13
    Part.LineSegment(Vector(13.9, 10.2, 0), Vector(13.9, 8.7, 0)),  # 14
    Part.LineSegment(Vector(13.9, 8.7, 0), Vector(20.9, 8.7, 0)),  # 15
    Part.LineSegment(Vector(20.9, 8.7, 0), Vector(20.9, 10.2, 0)),  # 16
    Part.LineSegment(Vector(20.9, 10.2, 0), Vector(13.9, 10.2, 0)),  # 17
    Part.LineSegment(Vector(15.7, -29.3, 0), Vector(16.3, -30.7, 0)),  # 18
    Part.LineSegment(Vector(16.3, -30.7, 0), Vector(22.6, -27.8, 0)),  # 19
    Part.LineSegment(Vector(22.6, -27.8, 0), Vector(22, -26.4, 0)),  # 20
    Part.LineSegment(Vector(22, -26.4, 0), Vector(15.7, -29.3, 0)),  # 21
], False)
sketch14.addConstraint([
    Sketcher.Constraint("Coincident", 6, 2, 7, 1),
    Sketcher.Constraint("Coincident", 7, 2, 8, 1),
    Sketcher.Constraint("Coincident", 8, 2, 9, 1),
    Sketcher.Constraint("Coincident", 9, 2, 6, 1),
    Sketcher.Constraint("Coincident", 10, 2, 11, 1),
    Sketcher.Constraint("Coincident", 11, 2, 12, 1),
    Sketcher.Constraint("Coincident", 12, 2, 13, 1),
    Sketcher.Constraint("Coincident", 13, 2, 10, 1),
    Sketcher.Constraint("Coincident", 14, 2, 15, 1),
    Sketcher.Constraint("Coincident", 15, 2, 16, 1),
    Sketcher.Constraint("Coincident", 16, 2, 17, 1),
    Sketcher.Constraint("Coincident", 17, 2, 14, 1),
    Sketcher.Constraint("Coincident", 18, 2, 19, 1),
    Sketcher.Constraint("Coincident", 19, 2, 20, 1),
    Sketcher.Constraint("Coincident", 20, 2, 21, 1),
    Sketcher.Constraint("Coincident", 21, 2, 18, 1),
    Sketcher.Constraint("Vertical", 10),
    Sketcher.Constraint("Horizontal", 11),
    Sketcher.Constraint("Vertical", 12),
    Sketcher.Constraint("Horizontal", 13),
    Sketcher.Constraint("Vertical", 14),
    Sketcher.Constraint("Horizontal", 15),
    Sketcher.Constraint("Vertical", 16),
    Sketcher.Constraint("Horizontal", 17),
    Sketcher.Constraint("Equal", 0, 1),
    Sketcher.Constraint("Equal", 2, 3),
    Sketcher.Constraint("Equal", 3, 4),
    Sketcher.Constraint("Equal", 4, 5),
    Sketcher.Constraint("Symmetric", 0, 3, 1, 3, -2),
    Sketcher.Constraint("Symmetric", 3, 3, 4, 3, -2),
    Sketcher.Constraint("Symmetric", 2, 3, 5, 3, -2),
    Sketcher.Constraint("Symmetric", 11, 2, 14, 2, -2),
    Sketcher.Constraint("Symmetric", 13, 2, 16, 2, -2),
    Sketcher.Constraint("Symmetric", 7, 2, 18, 2, -2),
    Sketcher.Constraint("Symmetric", 6, 2, 19, 2, -2),
    Sketcher.Constraint("Symmetric", 9, 2, 20, 2, -2),
    Sketcher.Constraint("Symmetric", 8, 2, 21, 2, -2),
    Sketcher.Constraint("Perpendicular", 6, 7),
    Sketcher.Constraint("Perpendicular", 7, 8),
    Sketcher.Constraint("Perpendicular", 8, 9),
    Sketcher.Constraint("Diameter", 0, Q("4 mm")),
    Sketcher.Constraint("Diameter", 2, Q("3 mm")),
    Sketcher.Constraint("DistanceX", 11, 1, 11, 2, Q("7 mm")),
    Sketcher.Constraint("Angle", 6, Q("-115 deg")),
    Sketcher.Constraint("Distance", 7, Q("7 mm")),
    Sketcher.Constraint("DistanceY", 10, 2, 10, 1, Q("1.5 mm")),
    Sketcher.Constraint("Distance", 6, Q("1.5 mm")),
    Sketcher.Constraint("DistanceX", 3, 3, -1, 1, Q("25.4 mm")),
    Sketcher.Constraint("DistanceX", 10, 2, -1, 1, Q("20.9 mm")),
    Sketcher.Constraint("DistanceX", 0, 3, 1, 3, Q("38.3 mm")),
    Sketcher.Constraint("DistanceY", 0, 3, -1, 1, Q("21.55 mm")),
    Sketcher.Constraint("DistanceY", 2, 3, 3, 3, Q("20.99 mm")),
    Sketcher.Constraint("DistanceY", 10, 2, 3, 3, Q("1.75 mm")),
    Sketcher.Constraint("DistanceY", 7, 2, 2, 3, Q("20.2158 mm")),
    Sketcher.Constraint("DistanceX", 2, 3, -1, 1, Q("25.399982 mm")),
    Sketcher.Constraint("DistanceX", 6, 2, -1, 1, Q("22.639041 mm")),
    Sketcher.Constraint("DistanceY", 2, 3, -1, 1, Q("10.493095 mm")),
])
pad5 = body.newObject("PartDesign::Pad", "Pad004")
pad5.Profile = sketch14
pad5.Length = 3
pad5.Reversed = True

# Sketch on XY plane
sketch15 = body.newObject("Sketcher::SketchObject", "Sketch014")
sketch15.AttachmentSupport = (doc.getObject("XY_Plane"), [""])
sketch15.MapMode = "FlatFace"
sketch15.AttachmentOffset = App.Placement(Vector(0, 0, 1), App.Rotation())
sketch15.addGeometry([
    Part.LineSegment(Vector(-37.3, 16.4, 0), Vector(-30, 16.4, 0)),  # 0
    Part.LineSegment(Vector(-30, 16.4, 0), Vector(-30, -16.4, 0)),  # 1
    Part.LineSegment(Vector(-30, -16.4, 0), Vector(-37.3, -16.4, 0)),  # 2
    Part.ArcOfCircle(Part.Circle(Vector(0, 6.2, 0), Vector(0, 0, 1), 43.6), math.radians(-149), math.radians(-31)),  # 3
    Part.LineSegment(Vector(37.3, -16.4, 0), Vector(30, -16.4, 0)),  # 4
    Part.LineSegment(Vector(30, -16.4, 0), Vector(30, 16.4, 0)),  # 5
    Part.LineSegment(Vector(30, 16.4, 0), Vector(37.3, 16.4, 0)),  # 6
    Part.ArcOfCircle(Part.Circle(Vector(7.6, 3.3, 0), Vector(0, 0, 1), 32.5), math.radians(24), math.radians(55)),  # 7
    Part.LineSegment(Vector(26.4, 29.8, 0), Vector(22.8, 29.8, 0)),  # 8
    Part.LineSegment(Vector(22.8, 29.8, 0), Vector(11, 25.5, 0)),  # 9
    Part.LineSegment(Vector(11, 25.5, 0), Vector(-11, 25.5, 0)),  # 10
    Part.LineSegment(Vector(-11, 25.5, 0), Vector(-22.8, 29.8, 0)),  # 11
    Part.LineSegment(Vector(-22.8, 29.8, 0), Vector(-26.4, 29.8, 0)),  # 12
    Part.ArcOfCircle(Part.Circle(Vector(-7.6, 3.3, 0), Vector(0, 0, 1), 32.5), math.radians(125), math.radians(156)),  # 13
], False)
sketch15.addConstraint([
    Sketcher.Constraint("Coincident", 0, 2, 1, 1),
    Sketcher.Constraint("Coincident", 1, 2, 2, 1),
    Sketcher.Constraint("Coincident", 2, 2, 3, 1),
    Sketcher.Constraint("Coincident", 3, 2, 4, 1),
    Sketcher.Constraint("Coincident", 4, 2, 5, 1),
    Sketcher.Constraint("Coincident", 5, 2, 6, 1),
    Sketcher.Constraint("Coincident", 6, 2, 7, 1),
    Sketcher.Constraint("Coincident", 7, 2, 8, 1),
    Sketcher.Constraint("Coincident", 8, 2, 9, 1),
    Sketcher.Constraint("Coincident", 9, 2, 10, 1),
    Sketcher.Constraint("Coincident", 10, 2, 11, 1),
    Sketcher.Constraint("Coincident", 11, 2, 12, 1),
    Sketcher.Constraint("Coincident", 12, 2, 13, 1),
    Sketcher.Constraint("Coincident", 13, 2, 0, 1),
    Sketcher.Constraint("Horizontal", 0),
    Sketcher.Constraint("Vertical", 1),
    Sketcher.Constraint("Horizontal", 2),
    Sketcher.Constraint("Horizontal", 4),
    Sketcher.Constraint("Vertical", 5),
    Sketcher.Constraint("Horizontal", 6),
    Sketcher.Constraint("Horizontal", 8),
    Sketcher.Constraint("Horizontal", 10),
    Sketcher.Constraint("Horizontal", 12),
    Sketcher.Constraint("Equal", 7, 13),
    Sketcher.Constraint("Symmetric", 0, 2, 4, 2, -1, 1),
    Sketcher.Constraint("Symmetric", 2, 2, 6, 2, -1, 1),
    Sketcher.Constraint("Symmetric", 7, 3, 13, 3, -2),
    Sketcher.Constraint("Symmetric", 2, 2, 3, 2, -2),
    Sketcher.Constraint("Symmetric", 8, 2, 11, 2, -2),
    Sketcher.Constraint("Equal", 9, 11),
    Sketcher.Constraint("DistanceX", 10, 2, 10, 1, Q("22 mm")),
    Sketcher.Constraint("DistanceX", 8, 2, 8, 1, Q("3.6 mm")),
    Sketcher.Constraint("DistanceX", 0, 2, -1, 1, Q("30 mm")),
    Sketcher.Constraint("DistanceY", -1, 1, 9, 2, Q("25.5 mm")),
    Sketcher.Constraint("Radius", 3, Q("43.616438 mm")),
    Sketcher.Constraint("Radius", 7, Q("32.475544 mm")),
    Sketcher.Constraint("DistanceX", 0, 1, 0, 2, Q("7.299712 mm")),
    Sketcher.Constraint("DistanceY", -1, 1, 0, 2, Q("16.449298 mm")),
    Sketcher.Constraint("DistanceX", -1, 1, 7, 2, Q("26.390039 mm")),
    Sketcher.Constraint("DistanceX", 2, 2, 7, 3, Q("44.91224 mm")),
])
pocket10 = body.newObject("PartDesign::Pocket", "Pocket009")
pocket10.Profile = sketch15
pocket10.Length = 2
pocket10.Reversed = True

# Sketch on XY plane
sketch16 = body.newObject("Sketcher::SketchObject", "Sketch015")
sketch16.AttachmentSupport = (doc.getObject("XY_Plane"), [""])
sketch16.MapMode = "FlatFace"
sketch16.AttachmentOffset = App.Placement(Vector(0, 0, 1), App.Rotation())
sketch16.addGeometry([
    Part.Circle(Vector(-31.3, -19.4, 0), Vector(0, 0, 1), 1.5),
    Part.Circle(Vector(31.3, -19.4, 0), Vector(0, 0, 1), 1.5),
], False)
sketch16.addConstraint([
    Sketcher.Constraint("Equal", 0, 1),
    Sketcher.Constraint("Symmetric", 0, 3, 1, 3, -2),
    Sketcher.Constraint("Diameter", 0, Q("3 mm")),
    Sketcher.Constraint("DistanceY", 0, 3, -1, 1, Q("19.449298 mm")),
    Sketcher.Constraint("DistanceX", 0, 3, -1, 1, Q("31.299712 mm")),
])
pocket11 = body.newObject("PartDesign::Pocket", "Pocket010")
pocket11.Profile = sketch16
pocket11.Length = 2

doc.recompute()
